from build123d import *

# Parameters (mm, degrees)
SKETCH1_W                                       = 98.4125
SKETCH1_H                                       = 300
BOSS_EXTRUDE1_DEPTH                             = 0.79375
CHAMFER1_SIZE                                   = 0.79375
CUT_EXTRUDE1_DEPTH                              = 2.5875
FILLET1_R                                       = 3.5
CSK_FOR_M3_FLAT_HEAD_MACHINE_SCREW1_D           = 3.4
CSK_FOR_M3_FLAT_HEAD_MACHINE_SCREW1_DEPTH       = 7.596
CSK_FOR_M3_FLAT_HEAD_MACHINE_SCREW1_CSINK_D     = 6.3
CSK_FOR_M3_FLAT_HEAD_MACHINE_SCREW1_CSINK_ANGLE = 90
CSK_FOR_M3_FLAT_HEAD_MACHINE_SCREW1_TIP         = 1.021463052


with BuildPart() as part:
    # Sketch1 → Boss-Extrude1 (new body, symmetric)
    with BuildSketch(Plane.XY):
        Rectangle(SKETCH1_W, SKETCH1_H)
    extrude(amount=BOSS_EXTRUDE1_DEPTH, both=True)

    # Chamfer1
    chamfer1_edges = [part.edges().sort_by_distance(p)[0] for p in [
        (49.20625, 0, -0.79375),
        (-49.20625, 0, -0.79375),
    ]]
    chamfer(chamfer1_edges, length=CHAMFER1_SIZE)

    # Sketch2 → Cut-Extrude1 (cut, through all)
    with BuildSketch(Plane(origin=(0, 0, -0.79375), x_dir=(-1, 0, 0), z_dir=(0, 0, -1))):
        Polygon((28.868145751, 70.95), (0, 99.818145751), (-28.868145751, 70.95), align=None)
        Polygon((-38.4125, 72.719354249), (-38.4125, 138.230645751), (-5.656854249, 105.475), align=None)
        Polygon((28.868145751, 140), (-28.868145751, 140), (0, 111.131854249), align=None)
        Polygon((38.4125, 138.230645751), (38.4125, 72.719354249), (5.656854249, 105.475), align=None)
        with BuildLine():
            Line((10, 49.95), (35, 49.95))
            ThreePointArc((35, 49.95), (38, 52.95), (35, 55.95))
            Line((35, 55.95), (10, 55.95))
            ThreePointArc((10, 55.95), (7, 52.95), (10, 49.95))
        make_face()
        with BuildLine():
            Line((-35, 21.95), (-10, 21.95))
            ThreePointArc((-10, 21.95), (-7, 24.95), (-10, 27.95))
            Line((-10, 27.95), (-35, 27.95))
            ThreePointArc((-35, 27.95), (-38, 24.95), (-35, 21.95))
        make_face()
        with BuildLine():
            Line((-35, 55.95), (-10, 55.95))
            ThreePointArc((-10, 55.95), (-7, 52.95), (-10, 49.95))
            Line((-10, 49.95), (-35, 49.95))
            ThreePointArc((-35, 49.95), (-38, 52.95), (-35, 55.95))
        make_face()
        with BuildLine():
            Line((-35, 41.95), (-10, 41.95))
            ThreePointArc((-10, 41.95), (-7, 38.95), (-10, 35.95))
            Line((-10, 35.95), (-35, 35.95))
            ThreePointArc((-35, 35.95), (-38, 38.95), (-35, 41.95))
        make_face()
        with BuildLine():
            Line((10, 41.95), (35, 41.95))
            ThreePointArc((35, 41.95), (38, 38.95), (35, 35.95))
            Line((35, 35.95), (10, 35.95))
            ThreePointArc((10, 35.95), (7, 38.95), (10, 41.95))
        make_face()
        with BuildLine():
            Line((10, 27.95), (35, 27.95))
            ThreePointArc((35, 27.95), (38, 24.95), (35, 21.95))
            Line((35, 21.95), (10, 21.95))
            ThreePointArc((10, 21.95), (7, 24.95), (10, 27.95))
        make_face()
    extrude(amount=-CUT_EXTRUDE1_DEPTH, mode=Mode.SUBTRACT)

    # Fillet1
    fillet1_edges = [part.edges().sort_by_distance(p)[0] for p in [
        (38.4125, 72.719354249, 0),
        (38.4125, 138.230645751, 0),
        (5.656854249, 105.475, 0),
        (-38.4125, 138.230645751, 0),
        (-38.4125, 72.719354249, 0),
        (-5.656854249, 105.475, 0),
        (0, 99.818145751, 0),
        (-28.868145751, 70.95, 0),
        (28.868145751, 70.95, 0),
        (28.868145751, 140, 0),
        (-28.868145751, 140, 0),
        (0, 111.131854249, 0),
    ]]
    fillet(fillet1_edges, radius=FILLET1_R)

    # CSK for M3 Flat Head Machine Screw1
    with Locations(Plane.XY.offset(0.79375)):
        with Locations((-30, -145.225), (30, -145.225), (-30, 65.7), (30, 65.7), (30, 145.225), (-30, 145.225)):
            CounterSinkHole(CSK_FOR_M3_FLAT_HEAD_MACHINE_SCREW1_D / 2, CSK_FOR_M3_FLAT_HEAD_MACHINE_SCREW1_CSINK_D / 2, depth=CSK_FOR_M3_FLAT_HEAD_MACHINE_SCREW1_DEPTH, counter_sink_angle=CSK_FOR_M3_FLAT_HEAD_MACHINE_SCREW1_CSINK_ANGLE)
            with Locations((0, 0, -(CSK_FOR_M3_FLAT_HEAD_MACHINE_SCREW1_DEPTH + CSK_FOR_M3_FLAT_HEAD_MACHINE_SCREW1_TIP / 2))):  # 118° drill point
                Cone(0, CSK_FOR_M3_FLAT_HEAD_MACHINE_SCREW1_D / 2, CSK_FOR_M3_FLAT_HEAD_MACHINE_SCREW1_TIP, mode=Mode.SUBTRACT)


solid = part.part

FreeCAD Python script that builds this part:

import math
import FreeCAD as App
import Part
import Sketcher

V = App.Vector


def edges_at(feature, points):
    """Names of the edges that pass closest to the given points."""
    edges = feature.Shape.Edges
    near = lambda p: min(range(len(edges)), key=lambda i: edges[i].distToShape(Part.Vertex(*p))[0])
    return sorted({f"Edge{near(p) + 1}" for p in points})

doc = App.newDocument("Part")
body = doc.addObject("PartDesign::Body", "Body")

# Sketch on XY plane
sketch1 = doc.addObject("Sketcher::SketchObject", "Sketch")
body.addObject(sketch1)
sketch1.AttachmentSupport = (doc.XY_Plane, [""])
sketch1.MapMode = "FlatFace"
sketch1.addGeometry([
    Part.LineSegment(V(-49.20625, 150, 0), V(-49.20625, -150, 0)),
    Part.LineSegment(V(-49.20625, -150, 0), V(49.20625, -150, 0)),
    Part.LineSegment(V(49.20625, -150, 0), V(49.20625, 150, 0)),
    Part.LineSegment(V(49.20625, 150, 0), V(-49.20625, 150, 0)),
], False)
sketch1.addConstraint([
    Sketcher.Constraint("Coincident", 0, 2, 1, 1),
    Sketcher.Constraint("Coincident", 1, 2, 2, 1),
    Sketcher.Constraint("Coincident", 2, 2, 3, 1),
    Sketcher.Constraint("Coincident", 3, 2, 0, 1),
    Sketcher.Constraint("Vertical", 0),
    Sketcher.Constraint("Horizontal", 1),
    Sketcher.Constraint("Vertical", 2),
    Sketcher.Constraint("Horizontal", 3),
    Sketcher.Constraint("Symmetric", 0, 2, 2, 2, -1, 1),
    Sketcher.Constraint("DistanceY", 0, 2, 0, 1, 300.0),
    Sketcher.Constraint("DistanceX", 1, 1, 1, 2, 98.4125),
])
pad1 = doc.addObject("PartDesign::Pad", "Pad")
body.addObject(pad1)
pad1.Profile = sketch1
pad1.Length = 1.5875
pad1.Midplane = True
doc.recompute()

chamfer = doc.addObject("PartDesign::Chamfer", "Chamfer")
body.addObject(chamfer)
chamfer.Base = (pad1, edges_at(pad1, [(49.206, 0, -0.794), (-49.206, 0, -0.794)]))
chamfer.Size = 0.79375

# Sketch on XY plane
sketch2 = doc.addObject("Sketcher::SketchObject", "Sketch001")
body.addObject(sketch2)
sketch2.AttachmentSupport = (doc.XY_Plane, [""])
sketch2.MapMode = "FlatFace"
sketch2.AttachmentOffset = App.Placement(V(0, 0, -0.79375), App.Rotation())
sketch2.addGeometry([
    Part.LineSegment(V(-28.868146, 70.95, 0), V(0, 99.818146, 0)),  # 0
    Part.LineSegment(V(0, 99.818146, 0), V(28.868146, 70.95, 0)),  # 1
    Part.LineSegment(V(28.868146, 70.95, 0), V(-28.868146, 70.95, 0)),  # 2
    Part.LineSegment(V(38.4125, 138.230646, 0), V(38.4125, 72.719354, 0)),  # 3
    Part.LineSegment(V(38.4125, 72.719354, 0), V(5.656854, 105.475, 0)),  # 4
    Part.LineSegment(V(5.656854, 105.475, 0), V(38.4125, 138.230646, 0)),  # 5
    Part.LineSegment(V(-28.868146, 140, 0), V(28.868146, 140, 0)),  # 6
    Part.LineSegment(V(28.868146, 140, 0), V(0, 111.131854, 0)),  # 7
    Part.LineSegment(V(0, 111.131854, 0), V(-28.868146, 140, 0)),  # 8
    Part.LineSegment(V(-38.4125, 72.719354, 0), V(-38.4125, 138.230646, 0)),  # 9
    Part.LineSegment(V(-38.4125, 138.230646, 0), V(-5.656854, 105.475, 0)),  # 10
    Part.LineSegment(V(-5.656854, 105.475, 0), V(-38.4125, 72.719354, 0)),  # 11
    Part.LineSegment(V(-10, 49.95, 0), V(-35, 49.95, 0)),  # 12
    Part.ArcOfCircle(Part.Circle(V(-35, 52.95, 0), V(0, 0, 1), 3), math.radians(90), math.radians(270)),  # 13
    Part.LineSegment(V(-35, 55.95, 0), V(-10, 55.95, 0)),  # 14
    Part.ArcOfCircle(Part.Circle(V(-10, 52.95, 0), V(0, 0, 1), 3), math.radians(-90), math.radians(90)),  # 15
    Part.LineSegment(V(35, 21.95, 0), V(10, 21.95, 0)),  # 16
    Part.ArcOfCircle(Part.Circle(V(10, 24.95, 0), V(0, 0, 1), 3), math.radians(90), math.radians(270)),  # 17
    Part.LineSegment(V(10, 27.95, 0), V(35, 27.95, 0)),  # 18
    Part.ArcOfCircle(Part.Circle(V(35, 24.95, 0), V(0, 0, 1), 3), math.radians(-90), math.radians(90)),  # 19
    Part.LineSegment(V(10, 55.95, 0), V(35, 55.95, 0)),  # 20
    Part.ArcOfCircle(Part.Circle(V(35, 52.95, 0), V(0, 0, 1), 3), math.radians(-90), math.radians(90)),  # 21
    Part.LineSegment(V(35, 49.95, 0), V(10, 49.95, 0)),  # 22
    Part.ArcOfCircle(Part.Circle(V(10, 52.95, 0), V(0, 0, 1), 3), math.radians(90), math.radians(270)),  # 23
    Part.LineSegment(V(10, 41.95, 0), V(35, 41.95, 0)),  # 24
    Part.ArcOfCircle(Part.Circle(V(35, 38.95, 0), V(0, 0, 1), 3), math.radians(-90), math.radians(90)),  # 25
    Part.LineSegment(V(35, 35.95, 0), V(10, 35.95, 0)),  # 26
    Part.ArcOfCircle(Part.Circle(V(10, 38.95, 0), V(0, 0, 1), 3), math.radians(90), math.radians(270)),  # 27
    Part.LineSegment(V(-35, 41.95, 0), V(-10, 41.95, 0)),  # 28
    Part.ArcOfCircle(Part.Circle(V(-10, 38.95, 0), V(0, 0, 1), 3), math.radians(-90), math.radians(90)),  # 29
    Part.LineSegment(V(-10, 35.95, 0), V(-35, 35.95, 0)),  # 30
    Part.ArcOfCircle(Part.Circle(V(-35, 38.95, 0), V(0, 0, 1), 3), math.radians(90), math.radians(270)),  # 31
    Part.LineSegment(V(-35, 27.95, 0), V(-10, 27.95, 0)),  # 32
    Part.ArcOfCircle(Part.Circle(V(-10, 24.95, 0), V(0, 0, 1), 3), math.radians(-90), math.radians(90)),  # 33
    Part.LineSegment(V(-10, 21.95, 0), V(-35, 21.95, 0)),  # 34
    Part.ArcOfCircle(Part.Circle(V(-35, 24.95, 0), V(0, 0, 1), 3), math.radians(90), math.radians(270)),  # 35
], False)
sketch2.addConstraint([
    Sketcher.Constraint("Coincident", 0, 2, 1, 1),
    Sketcher.Constraint("Coincident", 1, 2, 2, 1),
    Sketcher.Constraint("Coincident", 2, 2, 0, 1),
    Sketcher.Constraint("Coincident", 3, 2, 4, 1),
    Sketcher.Constraint("Coincident", 4, 2, 5, 1),
    Sketcher.Constraint("Coincident", 5, 2, 3, 1),
    Sketcher.Constraint("Coincident", 6, 2, 7, 1),
    Sketcher.Constraint("Coincident", 7, 2, 8, 1),
    Sketcher.Constraint("Coincident", 8, 2, 6, 1),
    Sketcher.Constraint("Coincident", 9, 2, 10, 1),
    Sketcher.Constraint("Coincident", 10, 2, 11, 1),
    Sketcher.Constraint("Coincident", 11, 2, 9, 1),
    Sketcher.Constraint("Tangent", 12, 2, 13, 2),
    Sketcher.Constraint("Tangent", 13, 1, 14, 1),
    Sketcher.Constraint("Tangent", 14, 2, 15, 2),
    Sketcher.Constraint("Tangent", 15, 1, 12, 1),
    Sketcher.Constraint("Tangent", 16, 2, 17, 2),
    Sketcher.Constraint("Tangent", 17, 1, 18, 1),
    Sketcher.Constraint("Tangent", 18, 2, 19, 2),
    Sketcher.Constraint("Tangent", 19, 1, 16, 1),
    Sketcher.Constraint("Tangent", 20, 2, 21, 2),
    Sketcher.Constraint("Tangent", 21, 1, 22, 1),
    Sketcher.Constraint("Tangent", 22, 2, 23, 2),
    Sketcher.Constraint("Tangent", 23, 1, 20, 1),
    Sketcher.Constraint("Tangent", 24, 2, 25, 2),
    Sketcher.Constraint("Tangent", 25, 1, 26, 1),
    Sketcher.Constraint("Tangent", 26, 2, 27, 2),
    Sketcher.Constraint("Tangent", 27, 1, 24, 1),
    Sketcher.Constraint("Tangent", 28, 2, 29, 2),
    Sketcher.Constraint("Tangent", 29, 1, 30, 1),
    Sketcher.Constraint("Tangent", 30, 2, 31, 2),
    Sketcher.Constraint("Tangent", 31, 1, 28, 1),
    Sketcher.Constraint("Tangent", 32, 2, 33, 2),
    Sketcher.Constraint("Tangent", 33, 1, 34, 1),
    Sketcher.Constraint("Tangent", 34, 2, 35, 2),
    Sketcher.Constraint("Tangent", 35, 1, 32, 1),
    Sketcher.Constraint("Horizontal", 2),
    Sketcher.Constraint("Vertical", 3),
    Sketcher.Constraint("Horizontal", 6),
    Sketcher.Constraint("Vertical", 9),
    Sketcher.Constraint("Horizontal", 12),
    Sketcher.Constraint("Horizontal", 14),
    Sketcher.Constraint("Horizontal", 16),
    Sketcher.Constraint("Horizontal", 18),
    Sketcher.Constraint("Horizontal", 20),
    Sketcher.Constraint("Horizontal", 22),
    Sketcher.Constraint("Horizontal", 24),
    Sketcher.Constraint("Horizontal", 26),
    Sketcher.Constraint("Horizontal", 28),
    Sketcher.Constraint("Horizontal", 30),
    Sketcher.Constraint("Horizontal", 32),
    Sketcher.Constraint("Horizontal", 34),
    Sketcher.Constraint("Equal", 15, 17),
    Sketcher.Constraint("Equal", 19, 21),
    Sketcher.Constraint("Equal", 23, 25),
    Sketcher.Constraint("Equal", 27, 29),
    Sketcher.Constraint("Equal", 31, 33),
    Sketcher.Constraint("Symmetric", 13, 3, 21, 3, -2),
    Sketcher.Constraint("Symmetric", 27, 3, 29, 3, -2),
    Sketcher.Constraint("Symmetric", 17, 3, 33, 3, -2),
    Sketcher.Constraint("Symmetric", 5, 2, 9, 2, -2),
    Sketcher.Constraint("Symmetric", 4, 2, 10, 2, -2),
    Sketcher.Constraint("PointOnObject", 0, 2, -2),
    Sketcher.Constraint("PointOnObject", 7, 2, -2),
    Sketcher.Constraint("Perpendicular", 0, 1),
    Sketcher.Constraint("Parallel", 1, 4),
    Sketcher.Constraint("Perpendicular", 4, 5),
    Sketcher.Constraint("Parallel", 5, 7),
    Sketcher.Constraint("Perpendicular", 7, 8),
    Sketcher.Constraint("Parallel", 8, 10),
    Sketcher.Constraint("Perpendicular", 10, 11),
    Sketcher.Constraint("Vertical", 19, 3, 21, 3),
    Sketcher.Constraint("Vertical", 17, 3, 23, 3),
    Sketcher.Constraint("Vertical", 21, 3, 25, 3),
    Sketcher.Constraint("Vertical", 23, 3, 27, 3),
    Sketcher.Constraint("Vertical", 15, 3, 29, 3),
    Sketcher.Constraint("Vertical", 13, 3, 31, 3),
    Sketcher.Constraint("Vertical", 31, 3, 35, 3),
    Sketcher.Constraint("Vertical", 1, 2, 6, 2),
    Sketcher.Constraint("Radius", 13, 3.0),
    Sketcher.Constraint("DistanceX", 12, 2, 12, 1, 25.0),
    Sketcher.Constraint("DistanceX", 13, 3, -1, 1, 35.0),
    Sketcher.Constraint("DistanceY", -1, 1, 6, 2, 140.0),
    Sketcher.Constraint("DistanceY", 17, 3, 15, 3, 28.0),
    Sketcher.Constraint("DistanceY", 25, 3, 21, 3, 14.0),
    Sketcher.Constraint("DistanceY", 21, 3, 1, 2, 18.0),
    Sketcher.Constraint("DistanceY", -1, 1, 13, 3, 52.95),
    Sketcher.Constraint("DistanceY", -1, 1, 4, 2, 105.475),
    Sketcher.Constraint("DistanceX", 2, 2, 4, 2, 34.525),
    Sketcher.Constraint("DistanceX", 2, 2, 2, 1, 57.736292),
    Sketcher.Constraint("DistanceY", 3, 2, 3, 1, 65.511292),
])
pocket1 = doc.addObject("PartDesign::Pocket", "Pocket")
body.addObject(pocket1)
pocket1.Profile = sketch2
pocket1.Type = "ThroughAll"
pocket1.Reversed = True
doc.recompute()

fillet = doc.addObject("PartDesign::Fillet", "Fillet")
body.addObject(fillet)
fillet.Base = (pocket1, edges_at(pocket1, [
    (38.413, 72.719, 0),
    (38.413, 138.231, 0),
    (5.657, 105.475, 0),
    (-38.413, 138.231, 0),
    (-38.413, 72.719, 0),
    (-5.657, 105.475, 0),
    (0, 99.818, 0),
    (-28.868, 70.95, 0),
    (28.868, 70.95, 0),
    (28.868, 140, 0),
    (-28.868, 140, 0),
    (0, 111.132, 0),
]))
fillet.Radius = 3.5

# Sketch on XY plane
sketch3 = doc.addObject("Sketcher::SketchObject", "Sketch002")
body.addObject(sketch3)
sketch3.AttachmentSupport = (doc.XY_Plane, [""])
sketch3.MapMode = "FlatFace"
sketch3.AttachmentOffset = App.Placement(V(0, 0, 0.79375), App.Rotation())
sketch3.addGeometry([
    Part.Circle(V(-30, -145.225, 0), V(0, 0, 1), 1.7),  # 0
    Part.Circle(V(30, -145.225, 0), V(0, 0, 1), 1.7),  # 1
    Part.Circle(V(-30, 65.7, 0), V(0, 0, 1), 1.7),  # 2
    Part.Circle(V(30, 65.7, 0), V(0, 0, 1), 1.7),  # 3
    Part.Circle(V(30, 145.225, 0), V(0, 0, 1), 1.7),  # 4
    Part.Circle(V(-30, 145.225, 0), V(0, 0, 1), 1.7),  # 5
], False)
sketch3.addConstraint([
    Sketcher.Constraint("Equal", 0, 1),
    Sketcher.Constraint("Equal", 1, 2),
    Sketcher.Constraint("Equal", 2, 3),
    Sketcher.Constraint("Equal", 3, 4),
    Sketcher.Constraint("Equal", 4, 5),
    Sketcher.Constraint("Symmetric", 0, 3, 4, 3, -1, 1),
    Sketcher.Constraint("Symmetric", 1, 3, 5, 3, -1, 1),
    Sketcher.Constraint("Symmetric", 0, 3, 1, 3, -2),
    Sketcher.Constraint("Symmetric", 2, 3, 3, 3, -2),
    Sketcher.Constraint("Vertical", 0, 3, 2, 3),
    Sketcher.Constraint("Diameter", 0, 3.4),
    Sketcher.Constraint("DistanceX", 0, 3, -1, 1, 30.0),
    Sketcher.Constraint("DistanceY", -1, 1, 2, 3, 65.7),
    Sketcher.Constraint("DistanceY", 1, 3, 4, 3, 290.45),
])
doc.recompute()
hole = doc.addObject("PartDesign::Hole", "Hole")
body.addObject(hole)
hole.Profile = sketch3
hole.ThreadType = "None"
hole.Diameter = 3.4
hole.DepthType = "Dimension"
hole.Depth = 7.596
hole.DrillPoint = "Angled"
hole.DrillPointAngle = 118
hole.HoleCutType = "Countersink"
hole.HoleCutDiameter = 6.3
hole.HoleCutCountersinkAngle = 90

doc.recompute()
